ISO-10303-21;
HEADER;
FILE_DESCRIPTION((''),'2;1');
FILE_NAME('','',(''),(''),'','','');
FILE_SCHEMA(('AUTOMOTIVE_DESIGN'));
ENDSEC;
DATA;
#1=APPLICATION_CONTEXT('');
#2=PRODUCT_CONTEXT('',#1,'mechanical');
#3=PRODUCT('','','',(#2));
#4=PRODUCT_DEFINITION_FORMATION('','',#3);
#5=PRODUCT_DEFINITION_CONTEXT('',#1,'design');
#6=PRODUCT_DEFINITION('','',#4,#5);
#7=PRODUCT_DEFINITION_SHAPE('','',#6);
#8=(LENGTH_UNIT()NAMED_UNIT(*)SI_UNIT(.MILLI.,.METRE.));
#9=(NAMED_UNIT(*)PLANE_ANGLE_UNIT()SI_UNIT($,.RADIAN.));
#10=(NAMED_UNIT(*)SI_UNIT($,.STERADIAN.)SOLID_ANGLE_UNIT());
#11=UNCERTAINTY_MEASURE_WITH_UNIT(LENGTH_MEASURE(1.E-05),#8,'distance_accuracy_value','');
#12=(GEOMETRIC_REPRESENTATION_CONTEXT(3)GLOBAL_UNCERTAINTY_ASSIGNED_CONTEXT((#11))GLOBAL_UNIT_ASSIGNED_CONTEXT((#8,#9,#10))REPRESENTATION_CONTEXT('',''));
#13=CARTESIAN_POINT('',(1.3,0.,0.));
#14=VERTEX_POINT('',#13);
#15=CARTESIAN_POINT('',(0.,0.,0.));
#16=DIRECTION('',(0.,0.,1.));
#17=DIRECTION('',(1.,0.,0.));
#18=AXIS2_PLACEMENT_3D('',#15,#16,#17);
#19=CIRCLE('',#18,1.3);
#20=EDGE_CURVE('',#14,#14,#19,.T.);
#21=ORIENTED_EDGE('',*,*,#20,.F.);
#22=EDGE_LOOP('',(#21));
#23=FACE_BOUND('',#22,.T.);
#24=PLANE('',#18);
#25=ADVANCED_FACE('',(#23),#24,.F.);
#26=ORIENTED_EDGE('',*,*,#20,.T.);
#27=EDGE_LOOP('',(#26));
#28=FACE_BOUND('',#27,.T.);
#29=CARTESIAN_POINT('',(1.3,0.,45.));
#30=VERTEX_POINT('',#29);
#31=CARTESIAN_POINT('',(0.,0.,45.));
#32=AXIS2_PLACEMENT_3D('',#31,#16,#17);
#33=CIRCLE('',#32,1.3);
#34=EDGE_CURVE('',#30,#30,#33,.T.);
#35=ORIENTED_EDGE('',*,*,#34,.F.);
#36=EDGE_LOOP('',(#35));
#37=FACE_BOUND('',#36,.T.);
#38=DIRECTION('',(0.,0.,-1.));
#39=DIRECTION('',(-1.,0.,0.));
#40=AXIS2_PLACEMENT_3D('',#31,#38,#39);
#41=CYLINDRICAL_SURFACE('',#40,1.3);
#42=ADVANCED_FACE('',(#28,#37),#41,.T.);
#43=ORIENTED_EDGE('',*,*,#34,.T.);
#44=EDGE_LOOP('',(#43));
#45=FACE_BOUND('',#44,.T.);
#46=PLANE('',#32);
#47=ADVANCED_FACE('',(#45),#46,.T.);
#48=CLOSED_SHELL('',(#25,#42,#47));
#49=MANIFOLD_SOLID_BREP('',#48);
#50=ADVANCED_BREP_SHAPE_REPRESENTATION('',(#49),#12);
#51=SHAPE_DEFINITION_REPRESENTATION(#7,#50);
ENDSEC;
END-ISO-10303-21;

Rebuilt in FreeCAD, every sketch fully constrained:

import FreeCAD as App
import Part
import Sketcher

doc = App.newDocument("Part")
body = doc.addObject("PartDesign::Body", "Body")

# Sketch on XY plane
sketch1 = doc.addObject("Sketcher::SketchObject", "Sketch")
body.addObject(sketch1)
sketch1.AttachmentSupport = (doc.XY_Plane, [""])
sketch1.MapMode = "FlatFace"
sketch1.addGeometry(Part.Circle(App.Vector(0, 0, 0), App.Vector(0, 0, 1), 1.3), False)
sketch1.addConstraint(Sketcher.Constraint("Coincident", 0, 3, -1, 1))
sketch1.addConstraint(Sketcher.Constraint("Diameter", 0, 2.6))
pad1 = doc.addObject("PartDesign::Pad", "Pad")
body.addObject(pad1)
pad1.Profile = sketch1
pad1.Length = 45

doc.recompute()
